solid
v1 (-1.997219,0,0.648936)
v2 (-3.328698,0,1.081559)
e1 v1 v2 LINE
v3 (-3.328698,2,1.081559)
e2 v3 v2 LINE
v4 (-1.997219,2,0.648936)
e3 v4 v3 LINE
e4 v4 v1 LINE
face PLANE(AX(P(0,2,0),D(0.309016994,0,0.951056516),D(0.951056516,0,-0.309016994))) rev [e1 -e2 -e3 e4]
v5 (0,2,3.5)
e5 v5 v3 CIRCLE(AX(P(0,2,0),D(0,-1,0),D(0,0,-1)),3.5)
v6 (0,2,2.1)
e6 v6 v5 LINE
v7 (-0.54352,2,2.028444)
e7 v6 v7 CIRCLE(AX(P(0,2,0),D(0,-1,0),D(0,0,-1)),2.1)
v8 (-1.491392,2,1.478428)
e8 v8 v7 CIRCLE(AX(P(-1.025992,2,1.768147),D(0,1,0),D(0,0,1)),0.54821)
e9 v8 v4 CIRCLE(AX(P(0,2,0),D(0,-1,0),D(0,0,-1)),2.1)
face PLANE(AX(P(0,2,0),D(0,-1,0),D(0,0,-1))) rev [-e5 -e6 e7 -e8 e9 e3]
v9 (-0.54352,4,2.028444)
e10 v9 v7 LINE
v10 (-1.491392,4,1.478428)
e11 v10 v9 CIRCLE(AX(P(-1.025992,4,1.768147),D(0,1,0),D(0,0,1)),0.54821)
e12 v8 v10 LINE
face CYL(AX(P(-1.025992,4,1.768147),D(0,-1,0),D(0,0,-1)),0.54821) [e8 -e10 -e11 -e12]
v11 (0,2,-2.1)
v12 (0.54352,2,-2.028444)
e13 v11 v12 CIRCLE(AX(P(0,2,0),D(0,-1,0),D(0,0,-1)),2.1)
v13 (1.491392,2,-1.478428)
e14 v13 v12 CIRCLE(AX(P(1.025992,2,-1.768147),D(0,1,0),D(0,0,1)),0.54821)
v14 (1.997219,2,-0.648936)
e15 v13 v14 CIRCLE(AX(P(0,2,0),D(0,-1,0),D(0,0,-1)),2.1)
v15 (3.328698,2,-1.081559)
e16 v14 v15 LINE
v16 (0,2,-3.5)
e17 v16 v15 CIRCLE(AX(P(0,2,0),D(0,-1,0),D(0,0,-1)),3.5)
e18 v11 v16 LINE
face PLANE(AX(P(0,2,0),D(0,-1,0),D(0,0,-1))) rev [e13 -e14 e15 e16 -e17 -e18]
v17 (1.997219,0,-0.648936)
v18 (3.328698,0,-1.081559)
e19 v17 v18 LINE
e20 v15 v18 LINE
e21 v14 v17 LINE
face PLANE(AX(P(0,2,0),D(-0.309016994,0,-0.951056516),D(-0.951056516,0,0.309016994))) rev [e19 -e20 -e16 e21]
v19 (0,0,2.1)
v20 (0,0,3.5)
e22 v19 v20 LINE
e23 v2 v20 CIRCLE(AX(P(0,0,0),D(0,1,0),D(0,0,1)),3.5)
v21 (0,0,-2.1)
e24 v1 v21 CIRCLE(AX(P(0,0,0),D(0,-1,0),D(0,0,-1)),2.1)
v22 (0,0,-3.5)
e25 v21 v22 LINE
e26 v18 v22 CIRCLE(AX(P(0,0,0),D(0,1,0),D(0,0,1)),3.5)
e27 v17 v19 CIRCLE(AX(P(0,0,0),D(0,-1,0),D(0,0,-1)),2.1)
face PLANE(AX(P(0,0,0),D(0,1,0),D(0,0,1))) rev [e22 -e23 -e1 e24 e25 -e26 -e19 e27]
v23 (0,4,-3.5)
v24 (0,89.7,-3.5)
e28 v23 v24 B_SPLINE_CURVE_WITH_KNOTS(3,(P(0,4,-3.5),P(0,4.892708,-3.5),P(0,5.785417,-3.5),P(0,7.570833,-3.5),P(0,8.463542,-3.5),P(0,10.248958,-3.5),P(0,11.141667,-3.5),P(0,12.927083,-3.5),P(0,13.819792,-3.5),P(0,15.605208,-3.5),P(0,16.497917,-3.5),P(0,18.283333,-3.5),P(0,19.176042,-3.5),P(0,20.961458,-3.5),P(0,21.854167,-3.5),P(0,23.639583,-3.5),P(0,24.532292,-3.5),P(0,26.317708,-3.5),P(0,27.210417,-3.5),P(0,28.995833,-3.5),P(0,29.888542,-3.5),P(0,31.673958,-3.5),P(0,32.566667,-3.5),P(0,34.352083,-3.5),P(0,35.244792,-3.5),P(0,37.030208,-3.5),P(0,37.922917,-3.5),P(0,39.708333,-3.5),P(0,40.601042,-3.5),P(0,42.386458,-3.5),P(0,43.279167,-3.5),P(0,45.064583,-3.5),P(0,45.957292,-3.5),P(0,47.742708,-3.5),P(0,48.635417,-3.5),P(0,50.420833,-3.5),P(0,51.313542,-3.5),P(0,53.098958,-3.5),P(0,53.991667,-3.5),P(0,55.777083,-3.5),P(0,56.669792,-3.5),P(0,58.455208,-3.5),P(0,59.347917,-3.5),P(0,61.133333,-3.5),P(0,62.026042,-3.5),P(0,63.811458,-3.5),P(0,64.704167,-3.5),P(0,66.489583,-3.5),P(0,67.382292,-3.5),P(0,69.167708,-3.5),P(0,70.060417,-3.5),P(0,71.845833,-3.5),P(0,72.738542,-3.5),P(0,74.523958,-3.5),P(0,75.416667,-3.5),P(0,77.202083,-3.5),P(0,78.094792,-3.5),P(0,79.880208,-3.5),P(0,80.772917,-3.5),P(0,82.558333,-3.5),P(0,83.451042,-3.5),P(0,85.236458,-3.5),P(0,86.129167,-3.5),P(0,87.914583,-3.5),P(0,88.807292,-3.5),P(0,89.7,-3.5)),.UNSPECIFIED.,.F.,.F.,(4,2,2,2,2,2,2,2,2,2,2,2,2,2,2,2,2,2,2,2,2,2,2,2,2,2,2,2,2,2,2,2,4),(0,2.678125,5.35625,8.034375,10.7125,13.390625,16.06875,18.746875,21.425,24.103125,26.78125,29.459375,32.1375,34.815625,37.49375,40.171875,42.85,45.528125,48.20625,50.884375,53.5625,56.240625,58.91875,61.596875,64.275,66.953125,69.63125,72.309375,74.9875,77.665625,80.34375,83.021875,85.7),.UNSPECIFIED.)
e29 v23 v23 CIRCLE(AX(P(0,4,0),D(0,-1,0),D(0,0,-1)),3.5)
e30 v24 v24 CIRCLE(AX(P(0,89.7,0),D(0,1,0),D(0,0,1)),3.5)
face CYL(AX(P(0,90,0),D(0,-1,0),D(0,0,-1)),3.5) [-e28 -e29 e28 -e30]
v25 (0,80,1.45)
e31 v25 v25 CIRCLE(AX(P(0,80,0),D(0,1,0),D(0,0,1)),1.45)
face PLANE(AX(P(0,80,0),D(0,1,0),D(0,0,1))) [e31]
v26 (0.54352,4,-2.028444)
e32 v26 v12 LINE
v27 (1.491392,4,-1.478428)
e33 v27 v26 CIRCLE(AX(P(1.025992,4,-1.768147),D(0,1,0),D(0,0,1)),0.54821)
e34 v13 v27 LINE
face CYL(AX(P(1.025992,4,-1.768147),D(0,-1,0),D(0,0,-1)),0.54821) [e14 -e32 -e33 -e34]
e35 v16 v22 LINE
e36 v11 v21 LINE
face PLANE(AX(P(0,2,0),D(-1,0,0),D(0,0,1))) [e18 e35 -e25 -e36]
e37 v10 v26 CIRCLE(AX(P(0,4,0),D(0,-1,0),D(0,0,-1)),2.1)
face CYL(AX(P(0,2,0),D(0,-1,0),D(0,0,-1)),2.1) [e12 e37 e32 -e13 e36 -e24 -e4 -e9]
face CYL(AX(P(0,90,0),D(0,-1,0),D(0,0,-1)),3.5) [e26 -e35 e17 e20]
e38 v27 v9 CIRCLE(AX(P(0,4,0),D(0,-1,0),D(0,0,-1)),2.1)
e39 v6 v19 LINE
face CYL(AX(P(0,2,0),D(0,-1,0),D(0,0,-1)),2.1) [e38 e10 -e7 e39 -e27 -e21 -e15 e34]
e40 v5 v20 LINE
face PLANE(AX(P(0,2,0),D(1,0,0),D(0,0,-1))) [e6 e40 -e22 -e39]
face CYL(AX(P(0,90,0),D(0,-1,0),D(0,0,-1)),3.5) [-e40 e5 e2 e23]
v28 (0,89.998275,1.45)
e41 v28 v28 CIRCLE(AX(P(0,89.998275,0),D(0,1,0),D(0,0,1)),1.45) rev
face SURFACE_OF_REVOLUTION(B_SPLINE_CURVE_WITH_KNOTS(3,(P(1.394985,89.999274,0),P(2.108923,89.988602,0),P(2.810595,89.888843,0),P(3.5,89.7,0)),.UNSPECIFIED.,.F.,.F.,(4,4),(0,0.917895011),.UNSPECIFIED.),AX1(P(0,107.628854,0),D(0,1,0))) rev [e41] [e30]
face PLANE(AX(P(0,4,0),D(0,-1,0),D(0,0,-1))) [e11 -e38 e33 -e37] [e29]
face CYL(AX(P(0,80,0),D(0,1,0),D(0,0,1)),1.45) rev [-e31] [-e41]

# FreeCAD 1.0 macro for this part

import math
import FreeCAD as App
import Part
import Sketcher

V = App.Vector
Q = App.Units.Quantity

doc = App.newDocument("Part")
body = doc.addObject("PartDesign::Body", "Body")

# Sketch on XZ plane
sketch1 = doc.addObject("Sketcher::SketchObject", "Sketch")
body.addObject(sketch1)
sketch1.AttachmentSupport = (doc.XZ_Plane, [""])
sketch1.MapMode = "FlatFace"
sketch1.addGeometry(Part.Circle(V(0, 0, 0), V(0, 0, 1), 3.5), False)
sketch1.addConstraint([
    Sketcher.Constraint("Coincident", 0, 3, -1, 1),
    Sketcher.Constraint("Diameter", 0, 7.0),
])
pad1 = doc.addObject("PartDesign::Pad", "Pad")
body.addObject(pad1)
pad1.Profile = sketch1
pad1.Length = 90
pad1.Reversed = True

# Sketch on XZ plane
sketch2 = doc.addObject("Sketcher::SketchObject", "Sketch001")
body.addObject(sketch2)
sketch2.AttachmentSupport = (doc.XZ_Plane, [""])
sketch2.MapMode = "FlatFace"
sketch2.addGeometry([
    Part.LineSegment(V(0, 3.5, 0), V(0, 2.1, 0)),  # 0
    Part.ArcOfCircle(Part.Circle(V(0, 0, 0), V(0, 0, 1), 2.1), math.radians(-18), math.radians(90)),  # 1
    Part.LineSegment(V(1.997219, -0.648936, 0), V(3.328698, -1.081559, 0)),  # 2
    Part.ArcOfCircle(Part.Circle(V(0, 0, 0), V(0, 0, 1), 3.5), math.radians(-18), math.radians(0)),  # 3
    Part.ArcOfCircle(Part.Circle(V(0, 0, 0), V(0, 0, 1), 3.5), math.radians(0), math.radians(90)),  # 4
    Part.ArcOfCircle(Part.Circle(V(0, 0, 0), V(0, 0, 1), 2.1), math.radians(162), math.radians(270)),  # 5
    Part.LineSegment(V(-1.997219, 0.648936, 0), V(-3.328698, 1.081559, 0)),  # 6
    Part.ArcOfCircle(Part.Circle(V(0, 0, 0), V(0, 0, 1), 3.5), math.radians(162), math.radians(270)),  # 7
    Part.LineSegment(V(0, -3.5, 0), V(0, -2.1, 0)),  # 8
], False)
sketch2.addConstraint([
    Sketcher.Constraint("Coincident", 0, 2, 1, 2),
    Sketcher.Constraint("Coincident", 1, 1, 2, 1),
    Sketcher.Constraint("Coincident", 2, 2, 3, 1),
    Sketcher.Constraint("Tangent", 3, 2, 4, 1),
    Sketcher.Constraint("Coincident", 4, 2, 0, 1),
    Sketcher.Constraint("Coincident", 5, 1, 6, 1),
    Sketcher.Constraint("Coincident", 6, 2, 7, 1),
    Sketcher.Constraint("Coincident", 7, 2, 8, 1),
    Sketcher.Constraint("Coincident", 8, 2, 5, 2),
    Sketcher.Constraint("Vertical", 0),
    Sketcher.Constraint("Vertical", 8),
    Sketcher.Constraint("Coincident", 1, 3, -1, 1),
    Sketcher.Constraint("Coincident", 3, 3, -1, 1),
    Sketcher.Constraint("Coincident", 5, 3, -1, 1),
    Sketcher.Constraint("Coincident", 7, 3, -1, 1),
    Sketcher.Constraint("Equal", 3, 4),
    Sketcher.Constraint("Equal", 1, 5),
    Sketcher.Constraint("Equal", 4, 7),
    Sketcher.Constraint("PointOnObject", 0, 2, -2),
    Sketcher.Constraint("PointOnObject", 3, 2, -1),
    Sketcher.Constraint("PointOnObject", 7, 2, -2),
    Sketcher.Constraint("Parallel", 2, 6),
    Sketcher.Constraint("Radius", 1, 2.1),
    Sketcher.Constraint("Radius", 3, 3.5),
    Sketcher.Constraint("Angle", 2, Q("-18 deg")),
    Sketcher.Constraint("DistanceX", -1, 1, 1, 1, 1.997219),
    Sketcher.Constraint("DistanceX", 5, 1, -1, 1, 1.997219),
])
pocket1 = doc.addObject("PartDesign::Pocket", "Pocket")
body.addObject(pocket1)
pocket1.Profile = sketch2
pocket1.Length = 2

# Sketch on XZ plane
sketch3 = doc.addObject("Sketcher::SketchObject", "Sketch002")
body.addObject(sketch3)
sketch3.AttachmentSupport = (doc.XZ_Plane, [""])
sketch3.MapMode = "FlatFace"
sketch3.AttachmentOffset = App.Placement(V(0, 0, -2), App.Rotation())
sketch3.addGeometry([
    Part.Circle(V(0, 0, 0), V(0, 0, 1), 3.5),
    Part.Circle(V(0, 0, 0), V(0, 0, 1), 2.1),
], False)
sketch3.addConstraint([
    Sketcher.Constraint("Coincident", 0, 3, -1, 1),
    Sketcher.Constraint("Coincident", 1, 3, -1, 1),
    Sketcher.Constraint("Diameter", 0, 7.0),
    Sketcher.Constraint("Diameter", 1, 4.2),
])
pocket2 = doc.addObject("PartDesign::Pocket", "Pocket001")
body.addObject(pocket2)
pocket2.Profile = sketch3
pocket2.Length = 2

# Sketch on XZ plane
sketch4 = doc.addObject("Sketcher::SketchObject", "Sketch003")
body.addObject(sketch4)
sketch4.AttachmentSupport = (doc.XZ_Plane, [""])
sketch4.MapMode = "FlatFace"
sketch4.AttachmentOffset = App.Placement(V(0, 0, -2), App.Rotation())
sketch4.addGeometry([
    Part.Circle(V(-1.025992, 1.768147, 0), V(0, 0, 1), 0.54821),
    Part.Circle(V(1.025992, -1.768147, 0), V(0, 0, 1), 0.54821),
], False)
sketch4.addConstraint([
    Sketcher.Constraint("Equal", 0, 1),
    Sketcher.Constraint("Symmetric", 0, 3, 1, 3, -1, 1),
    Sketcher.Constraint("Diameter", 0, 1.09642),
    Sketcher.Constraint("DistanceX", 0, 3, -1, 1, 1.025992),
    Sketcher.Constraint("DistanceY", -1, 1, 0, 3, 1.768147),
])
pad2 = doc.addObject("PartDesign::Pad", "Pad001")
body.addObject(pad2)
pad2.Profile = sketch4
pad2.Length = 2
pad2.Reversed = True

# Sketch on XZ plane
sketch5 = doc.addObject("Sketcher::SketchObject", "Sketch004")
body.addObject(sketch5)
sketch5.AttachmentSupport = (doc.XZ_Plane, [""])
sketch5.MapMode = "FlatFace"
sketch5.AttachmentOffset = App.Placement(V(0, 0, -90), App.Rotation())
sketch5.addGeometry(Part.Circle(V(0, 0, 0), V(0, 0, 1), 1.45), False)
sketch5.addConstraint([
    Sketcher.Constraint("Coincident", 0, 3, -1, 1),
    Sketcher.Constraint("Diameter", 0, 2.9),
])
pocket3 = doc.addObject("PartDesign::Pocket", "Pocket002")
body.addObject(pocket3)
pocket3.Profile = sketch5
pocket3.Length = 10
pocket3.Reversed = True

# Sketch on XY plane
sketch6 = doc.addObject("Sketcher::SketchObject", "Sketch005")
body.addObject(sketch6)
sketch6.AttachmentSupport = (doc.XY_Plane, [""])
sketch6.MapMode = "FlatFace"
sketch6.addGeometry([
    Part.LineSegment(V(3.5, 89.7, 0), V(3.5, 90, 0)),
    Part.LineSegment(V(3.5, 90, 0), V(1.395404, 90, 0)),
    Part.BSplineCurve([V(3.5, 89.7, 0), V(2.810595, 89.888843, 0), V(2.108923, 89.988602, 0), V(1.395404, 90, 0)], [4, 4], [0, 0.917895011], False, 3, [1, 1, 1, 1], False),
], False)
sketch6.addConstraint([
    Sketcher.Constraint("Block", 2),
    Sketcher.Constraint("Coincident", 0, 2, 1, 1),
    Sketcher.Constraint("Coincident", 1, 2, 2, 2),
    Sketcher.Constraint("Coincident", 2, 1, 0, 1),
    Sketcher.Constraint("Vertical", 0),
    Sketcher.Constraint("Horizontal", 1),
])
groove = doc.addObject("PartDesign::Groove", "Groove")
body.addObject(groove)
groove.Profile = sketch6
groove.ReferenceAxis = (sketch6, ["V_Axis"])
groove.Angle = 360

doc.recompute()
